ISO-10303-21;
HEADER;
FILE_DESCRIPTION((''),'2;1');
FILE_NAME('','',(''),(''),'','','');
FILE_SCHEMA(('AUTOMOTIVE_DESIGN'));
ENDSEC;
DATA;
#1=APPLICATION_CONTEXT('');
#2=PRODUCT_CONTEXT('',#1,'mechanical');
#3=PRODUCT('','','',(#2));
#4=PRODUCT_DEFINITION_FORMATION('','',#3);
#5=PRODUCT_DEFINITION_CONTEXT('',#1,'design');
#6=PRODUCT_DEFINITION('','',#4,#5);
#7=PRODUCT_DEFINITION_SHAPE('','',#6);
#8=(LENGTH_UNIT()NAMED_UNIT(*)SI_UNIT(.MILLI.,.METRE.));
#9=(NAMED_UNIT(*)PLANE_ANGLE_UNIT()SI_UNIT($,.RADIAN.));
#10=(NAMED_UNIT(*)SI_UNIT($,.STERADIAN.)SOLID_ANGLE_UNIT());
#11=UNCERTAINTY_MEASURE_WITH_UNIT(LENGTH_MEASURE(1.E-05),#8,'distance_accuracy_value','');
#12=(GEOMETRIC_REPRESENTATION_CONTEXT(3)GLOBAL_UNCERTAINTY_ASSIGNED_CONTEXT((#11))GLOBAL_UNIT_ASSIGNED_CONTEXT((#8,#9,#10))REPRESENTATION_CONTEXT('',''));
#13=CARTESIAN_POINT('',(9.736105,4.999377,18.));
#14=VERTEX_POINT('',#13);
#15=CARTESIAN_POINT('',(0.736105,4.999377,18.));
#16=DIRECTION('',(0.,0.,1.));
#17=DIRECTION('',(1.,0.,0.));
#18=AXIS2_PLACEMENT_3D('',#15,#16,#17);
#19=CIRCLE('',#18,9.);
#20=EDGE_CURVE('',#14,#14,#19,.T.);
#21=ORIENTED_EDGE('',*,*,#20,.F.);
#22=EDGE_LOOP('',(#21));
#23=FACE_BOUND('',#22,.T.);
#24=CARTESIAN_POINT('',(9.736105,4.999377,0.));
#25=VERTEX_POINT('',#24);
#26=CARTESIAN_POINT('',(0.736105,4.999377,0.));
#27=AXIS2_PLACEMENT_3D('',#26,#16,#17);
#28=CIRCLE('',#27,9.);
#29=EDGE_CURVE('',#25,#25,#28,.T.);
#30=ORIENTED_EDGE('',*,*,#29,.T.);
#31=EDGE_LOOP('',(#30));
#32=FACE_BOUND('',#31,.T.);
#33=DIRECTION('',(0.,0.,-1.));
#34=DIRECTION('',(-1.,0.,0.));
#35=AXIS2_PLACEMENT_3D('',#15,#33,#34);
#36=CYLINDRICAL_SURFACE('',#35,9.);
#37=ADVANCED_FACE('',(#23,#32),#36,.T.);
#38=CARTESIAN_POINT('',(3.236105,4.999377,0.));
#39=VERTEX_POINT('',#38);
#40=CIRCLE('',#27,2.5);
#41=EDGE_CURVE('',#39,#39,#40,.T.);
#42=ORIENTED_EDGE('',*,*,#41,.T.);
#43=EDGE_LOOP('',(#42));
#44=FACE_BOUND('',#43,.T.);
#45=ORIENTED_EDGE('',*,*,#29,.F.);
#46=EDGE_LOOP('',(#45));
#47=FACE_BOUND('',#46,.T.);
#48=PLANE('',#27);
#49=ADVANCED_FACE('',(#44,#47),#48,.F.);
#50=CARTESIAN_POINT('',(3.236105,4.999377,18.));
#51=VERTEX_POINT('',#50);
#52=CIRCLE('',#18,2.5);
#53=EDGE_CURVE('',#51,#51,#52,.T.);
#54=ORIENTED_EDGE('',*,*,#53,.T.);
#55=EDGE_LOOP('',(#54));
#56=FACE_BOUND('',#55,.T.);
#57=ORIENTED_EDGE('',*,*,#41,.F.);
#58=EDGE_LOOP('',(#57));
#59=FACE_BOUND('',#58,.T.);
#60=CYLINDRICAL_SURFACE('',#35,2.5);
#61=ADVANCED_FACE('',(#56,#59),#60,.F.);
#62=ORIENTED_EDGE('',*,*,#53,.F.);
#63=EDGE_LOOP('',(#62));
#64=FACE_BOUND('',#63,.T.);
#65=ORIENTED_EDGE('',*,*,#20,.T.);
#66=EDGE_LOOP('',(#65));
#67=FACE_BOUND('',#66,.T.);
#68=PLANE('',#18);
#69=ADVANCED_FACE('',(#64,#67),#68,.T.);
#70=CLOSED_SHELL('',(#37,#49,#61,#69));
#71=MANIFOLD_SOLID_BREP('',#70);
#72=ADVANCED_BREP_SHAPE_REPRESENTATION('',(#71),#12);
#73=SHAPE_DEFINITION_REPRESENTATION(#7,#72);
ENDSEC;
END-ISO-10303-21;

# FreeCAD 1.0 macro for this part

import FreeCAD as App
import Part
import Sketcher

doc = App.newDocument("Part")
body = doc.addObject("PartDesign::Body", "Body")

sketch1 = body.newObject("Sketcher::SketchObject", "Sketch")
sketch1.AttachmentSupport = (doc.getObject("XY_Plane"), [""])
sketch1.MapMode = "FlatFace"
sketch1.addGeometry([
    Part.Circle(App.Vector(0.736105, 4.999377, 0), App.Vector(0, 0, 1), 9),
    Part.Circle(App.Vector(0.736105, 4.999377, 0), App.Vector(0, 0, 1), 2.5),
], False)
sketch1.addConstraint([
    Sketcher.Constraint("Coincident", 1, 3, 0, 3),
    Sketcher.Constraint("Diameter", 0, 18.0),
    Sketcher.Constraint("Diameter", 1, 5.0),
    Sketcher.Constraint("DistanceX", -1, 1, 0, 3, 0.736105),
    Sketcher.Constraint("DistanceY", -1, 1, 0, 3, 4.999377),
])
pad1 = body.newObject("PartDesign::Pad", "Pad")
pad1.Profile = sketch1
pad1.Length = 18

doc.recompute()
